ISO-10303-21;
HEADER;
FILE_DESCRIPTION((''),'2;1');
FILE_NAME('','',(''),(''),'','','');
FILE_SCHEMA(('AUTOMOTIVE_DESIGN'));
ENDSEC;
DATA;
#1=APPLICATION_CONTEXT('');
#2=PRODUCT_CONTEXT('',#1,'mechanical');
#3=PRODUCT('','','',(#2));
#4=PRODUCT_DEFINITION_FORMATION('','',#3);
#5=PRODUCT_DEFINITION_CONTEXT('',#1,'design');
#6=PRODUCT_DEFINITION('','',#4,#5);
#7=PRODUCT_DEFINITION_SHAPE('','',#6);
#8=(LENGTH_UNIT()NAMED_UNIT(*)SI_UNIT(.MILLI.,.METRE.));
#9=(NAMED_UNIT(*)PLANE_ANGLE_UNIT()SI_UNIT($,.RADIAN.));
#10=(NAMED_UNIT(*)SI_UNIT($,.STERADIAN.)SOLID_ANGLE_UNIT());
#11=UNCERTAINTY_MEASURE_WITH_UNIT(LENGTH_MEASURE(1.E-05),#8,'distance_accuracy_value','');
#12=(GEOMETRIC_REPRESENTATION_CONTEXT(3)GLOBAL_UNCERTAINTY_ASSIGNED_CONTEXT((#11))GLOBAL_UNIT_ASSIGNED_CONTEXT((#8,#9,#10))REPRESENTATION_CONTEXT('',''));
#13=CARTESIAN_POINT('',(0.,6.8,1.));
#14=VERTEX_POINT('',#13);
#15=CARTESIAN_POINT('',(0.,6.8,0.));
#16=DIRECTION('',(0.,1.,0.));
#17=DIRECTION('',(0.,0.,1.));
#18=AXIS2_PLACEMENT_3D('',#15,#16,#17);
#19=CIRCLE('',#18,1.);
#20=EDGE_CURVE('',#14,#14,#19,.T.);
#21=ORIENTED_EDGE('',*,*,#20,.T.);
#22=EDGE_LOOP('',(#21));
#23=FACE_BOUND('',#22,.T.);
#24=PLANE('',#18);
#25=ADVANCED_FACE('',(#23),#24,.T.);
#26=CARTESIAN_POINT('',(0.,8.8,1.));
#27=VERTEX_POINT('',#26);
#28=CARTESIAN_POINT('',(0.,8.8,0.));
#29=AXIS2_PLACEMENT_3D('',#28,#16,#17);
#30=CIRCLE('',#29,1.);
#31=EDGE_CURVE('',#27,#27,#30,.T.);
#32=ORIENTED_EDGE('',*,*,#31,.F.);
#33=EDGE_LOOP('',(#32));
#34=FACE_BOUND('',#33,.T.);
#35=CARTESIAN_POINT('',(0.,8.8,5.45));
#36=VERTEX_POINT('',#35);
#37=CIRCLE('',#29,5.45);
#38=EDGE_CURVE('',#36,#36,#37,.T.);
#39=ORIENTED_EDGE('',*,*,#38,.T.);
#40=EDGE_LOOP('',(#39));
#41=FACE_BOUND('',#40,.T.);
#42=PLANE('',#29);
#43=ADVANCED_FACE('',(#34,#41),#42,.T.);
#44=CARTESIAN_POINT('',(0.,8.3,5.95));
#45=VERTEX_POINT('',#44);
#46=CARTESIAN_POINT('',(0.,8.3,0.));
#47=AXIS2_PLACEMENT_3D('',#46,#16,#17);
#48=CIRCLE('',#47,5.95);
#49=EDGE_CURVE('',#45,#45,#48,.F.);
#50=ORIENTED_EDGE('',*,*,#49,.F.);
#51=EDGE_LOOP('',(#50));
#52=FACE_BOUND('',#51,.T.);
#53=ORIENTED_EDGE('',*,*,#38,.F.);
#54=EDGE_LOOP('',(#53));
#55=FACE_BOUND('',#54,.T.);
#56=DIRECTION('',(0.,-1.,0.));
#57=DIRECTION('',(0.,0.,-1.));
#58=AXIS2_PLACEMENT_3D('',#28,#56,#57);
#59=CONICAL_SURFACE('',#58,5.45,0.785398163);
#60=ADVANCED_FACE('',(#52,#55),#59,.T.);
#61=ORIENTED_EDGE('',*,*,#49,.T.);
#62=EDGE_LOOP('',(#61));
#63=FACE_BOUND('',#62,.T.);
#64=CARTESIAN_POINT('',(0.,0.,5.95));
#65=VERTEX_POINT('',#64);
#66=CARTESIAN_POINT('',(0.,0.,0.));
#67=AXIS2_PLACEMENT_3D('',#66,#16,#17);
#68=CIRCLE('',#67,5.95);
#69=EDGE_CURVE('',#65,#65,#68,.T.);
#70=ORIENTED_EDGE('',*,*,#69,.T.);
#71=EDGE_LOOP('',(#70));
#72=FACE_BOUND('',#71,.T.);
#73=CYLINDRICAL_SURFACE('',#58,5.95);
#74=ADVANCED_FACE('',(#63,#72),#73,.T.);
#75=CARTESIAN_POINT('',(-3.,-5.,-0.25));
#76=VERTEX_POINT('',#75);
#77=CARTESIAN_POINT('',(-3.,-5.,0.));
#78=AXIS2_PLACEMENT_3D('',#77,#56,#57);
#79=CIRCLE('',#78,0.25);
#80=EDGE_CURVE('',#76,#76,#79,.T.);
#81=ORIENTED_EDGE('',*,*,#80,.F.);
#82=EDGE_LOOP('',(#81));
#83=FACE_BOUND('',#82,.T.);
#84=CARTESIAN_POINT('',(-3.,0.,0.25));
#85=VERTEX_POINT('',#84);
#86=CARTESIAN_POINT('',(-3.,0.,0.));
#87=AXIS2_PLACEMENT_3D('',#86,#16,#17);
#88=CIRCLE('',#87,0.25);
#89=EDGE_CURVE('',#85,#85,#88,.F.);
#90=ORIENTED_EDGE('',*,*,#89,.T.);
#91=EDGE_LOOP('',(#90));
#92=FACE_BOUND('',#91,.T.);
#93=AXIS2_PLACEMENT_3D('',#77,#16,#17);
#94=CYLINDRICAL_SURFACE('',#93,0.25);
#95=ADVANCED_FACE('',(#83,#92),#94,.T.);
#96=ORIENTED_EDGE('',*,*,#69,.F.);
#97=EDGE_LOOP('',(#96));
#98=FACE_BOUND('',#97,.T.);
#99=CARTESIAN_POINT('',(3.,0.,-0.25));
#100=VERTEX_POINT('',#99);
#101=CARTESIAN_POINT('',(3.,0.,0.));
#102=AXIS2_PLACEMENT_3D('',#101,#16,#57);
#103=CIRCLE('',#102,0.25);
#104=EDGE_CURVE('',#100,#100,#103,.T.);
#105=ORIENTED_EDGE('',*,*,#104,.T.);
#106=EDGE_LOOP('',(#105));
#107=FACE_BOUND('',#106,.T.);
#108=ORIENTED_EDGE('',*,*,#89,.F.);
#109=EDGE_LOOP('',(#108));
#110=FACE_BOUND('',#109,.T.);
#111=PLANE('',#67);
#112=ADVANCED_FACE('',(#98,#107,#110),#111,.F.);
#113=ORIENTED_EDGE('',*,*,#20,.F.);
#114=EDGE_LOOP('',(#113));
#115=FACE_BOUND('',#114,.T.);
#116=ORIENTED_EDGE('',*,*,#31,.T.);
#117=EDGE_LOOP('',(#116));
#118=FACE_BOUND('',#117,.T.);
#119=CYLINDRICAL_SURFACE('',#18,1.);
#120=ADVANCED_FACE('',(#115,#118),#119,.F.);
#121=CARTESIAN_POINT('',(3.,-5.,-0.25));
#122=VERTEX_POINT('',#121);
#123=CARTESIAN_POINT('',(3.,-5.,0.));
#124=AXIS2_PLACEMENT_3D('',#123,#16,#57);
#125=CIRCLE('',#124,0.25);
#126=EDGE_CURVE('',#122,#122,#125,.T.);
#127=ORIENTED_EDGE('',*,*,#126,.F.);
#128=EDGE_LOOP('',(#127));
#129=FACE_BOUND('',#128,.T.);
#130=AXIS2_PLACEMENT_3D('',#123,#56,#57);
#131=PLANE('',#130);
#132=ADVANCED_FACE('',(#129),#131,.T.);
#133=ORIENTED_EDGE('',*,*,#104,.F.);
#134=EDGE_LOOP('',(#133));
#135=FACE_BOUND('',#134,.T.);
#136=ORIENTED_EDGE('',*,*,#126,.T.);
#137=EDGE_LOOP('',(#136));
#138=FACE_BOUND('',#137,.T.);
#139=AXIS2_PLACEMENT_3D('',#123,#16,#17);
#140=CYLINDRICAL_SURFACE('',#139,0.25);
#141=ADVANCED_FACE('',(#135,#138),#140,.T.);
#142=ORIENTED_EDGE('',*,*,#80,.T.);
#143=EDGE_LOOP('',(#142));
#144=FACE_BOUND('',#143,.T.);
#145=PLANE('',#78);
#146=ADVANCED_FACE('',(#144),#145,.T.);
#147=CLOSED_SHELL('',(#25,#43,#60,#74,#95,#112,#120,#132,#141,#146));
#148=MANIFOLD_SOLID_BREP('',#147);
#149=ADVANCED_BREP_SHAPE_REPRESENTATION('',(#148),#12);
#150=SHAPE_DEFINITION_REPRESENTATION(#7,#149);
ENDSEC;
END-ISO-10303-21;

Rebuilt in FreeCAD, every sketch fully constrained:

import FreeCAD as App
import Part
import Sketcher
from FreeCAD import Vector


def edges_at(feature, points):
    """Names of the edges that pass closest to the given points."""
    edges = feature.Shape.Edges
    near = lambda p: min(range(len(edges)), key=lambda i: edges[i].distToShape(Part.Vertex(*p))[0])
    return sorted({f"Edge{near(p) + 1}" for p in points})

doc = App.newDocument("Part")
params = doc.addObject("Spreadsheet::Sheet", "Params")
for row, (alias, value) in enumerate([
    ("sketch1_diameter", "11.9 mm"),
    ("pad1_length", "8.8 mm"),
    ("sketch2_diameter", "2 mm"),
    ("pocket1_length", "2 mm"),
    ("chamfer_size", "0.5 mm"),
    ("sketch3_diameter", "0.5 mm"),
    ("pad2_length", "5 mm"),
], start=1):
    params.set(f"A{row}", alias)
    params.set(f"B{row}", "=" + value)
    params.setAlias(f"B{row}", alias)

body = doc.addObject("PartDesign::Body", "Body")

# Sketch on XZ plane
sketch1 = doc.addObject("Sketcher::SketchObject", "Sketch")
body.addObject(sketch1)
sketch1.AttachmentSupport = (doc.XZ_Plane, [""])
sketch1.MapMode = "FlatFace"
sketch1.addGeometry(Part.Circle(Vector(0, 0, 0), Vector(0, 0, 1), 6), False)
sketch1.addConstraint([
    Sketcher.Constraint("Coincident", 0, 3, -1, 1),
    Sketcher.Constraint("Diameter", 0, 11.9),
])
sketch1.setExpression("Constraints[1]", "Params.sketch1_diameter")
pad1 = doc.addObject("PartDesign::Pad", "Pad")
body.addObject(pad1)
pad1.Profile = sketch1
pad1.setExpression("Length", "Params.pad1_length")
pad1.Reversed = True

# Sketch on XZ plane
sketch2 = doc.addObject("Sketcher::SketchObject", "Sketch001")
body.addObject(sketch2)
sketch2.AttachmentSupport = (doc.XZ_Plane, [""])
sketch2.MapMode = "FlatFace"
sketch2.AttachmentOffset = App.Placement(Vector(0, 0, -8.8), App.Rotation())
sketch2.addGeometry(Part.Circle(Vector(0, 0, 0), Vector(0, 0, 1), 1), False)
sketch2.addConstraint([
    Sketcher.Constraint("Coincident", 0, 3, -1, 1),
    Sketcher.Constraint("Diameter", 0, 2.0),
])
sketch2.setExpression("Constraints[1]", "Params.sketch2_diameter")
pocket1 = doc.addObject("PartDesign::Pocket", "Pocket")
body.addObject(pocket1)
pocket1.Profile = sketch2
pocket1.setExpression("Length", "Params.pocket1_length")
pocket1.Reversed = True
doc.recompute()

chamfer = doc.addObject("PartDesign::Chamfer", "Chamfer")
body.addObject(chamfer)
chamfer.Base = (pocket1, edges_at(pocket1, [(0, 8.8, -5.95)]))
chamfer.setExpression("Size", "Params.chamfer_size")

# Sketch on XZ plane
sketch3 = doc.addObject("Sketcher::SketchObject", "Sketch002")
body.addObject(sketch3)
sketch3.AttachmentSupport = (doc.XZ_Plane, [""])
sketch3.MapMode = "FlatFace"
sketch3.addGeometry(Part.Circle(Vector(-3, 0, 0), Vector(0, 0, 1), 0.25), False)
sketch3.addConstraint([
    Sketcher.Constraint("PointOnObject", 0, 3, -1),
    Sketcher.Constraint("Diameter", 0, 0.5),
    Sketcher.Constraint("DistanceX", 0, 3, -1, 1, 3.0),
])
sketch3.setExpression("Constraints[1]", "Params.sketch3_diameter")
pad2 = doc.addObject("PartDesign::Pad", "Pad001")
body.addObject(pad2)
pad2.Profile = sketch3
pad2.setExpression("Length", "Params.pad2_length")
doc.recompute()

mirrored = doc.addObject("PartDesign::Mirrored", "Mirrored")
body.addObject(mirrored)
mirrored.Originals = [pad2]
mirrored.MirrorPlane = (doc.YZ_Plane, [""])
body.Tip = mirrored

doc.recompute()
